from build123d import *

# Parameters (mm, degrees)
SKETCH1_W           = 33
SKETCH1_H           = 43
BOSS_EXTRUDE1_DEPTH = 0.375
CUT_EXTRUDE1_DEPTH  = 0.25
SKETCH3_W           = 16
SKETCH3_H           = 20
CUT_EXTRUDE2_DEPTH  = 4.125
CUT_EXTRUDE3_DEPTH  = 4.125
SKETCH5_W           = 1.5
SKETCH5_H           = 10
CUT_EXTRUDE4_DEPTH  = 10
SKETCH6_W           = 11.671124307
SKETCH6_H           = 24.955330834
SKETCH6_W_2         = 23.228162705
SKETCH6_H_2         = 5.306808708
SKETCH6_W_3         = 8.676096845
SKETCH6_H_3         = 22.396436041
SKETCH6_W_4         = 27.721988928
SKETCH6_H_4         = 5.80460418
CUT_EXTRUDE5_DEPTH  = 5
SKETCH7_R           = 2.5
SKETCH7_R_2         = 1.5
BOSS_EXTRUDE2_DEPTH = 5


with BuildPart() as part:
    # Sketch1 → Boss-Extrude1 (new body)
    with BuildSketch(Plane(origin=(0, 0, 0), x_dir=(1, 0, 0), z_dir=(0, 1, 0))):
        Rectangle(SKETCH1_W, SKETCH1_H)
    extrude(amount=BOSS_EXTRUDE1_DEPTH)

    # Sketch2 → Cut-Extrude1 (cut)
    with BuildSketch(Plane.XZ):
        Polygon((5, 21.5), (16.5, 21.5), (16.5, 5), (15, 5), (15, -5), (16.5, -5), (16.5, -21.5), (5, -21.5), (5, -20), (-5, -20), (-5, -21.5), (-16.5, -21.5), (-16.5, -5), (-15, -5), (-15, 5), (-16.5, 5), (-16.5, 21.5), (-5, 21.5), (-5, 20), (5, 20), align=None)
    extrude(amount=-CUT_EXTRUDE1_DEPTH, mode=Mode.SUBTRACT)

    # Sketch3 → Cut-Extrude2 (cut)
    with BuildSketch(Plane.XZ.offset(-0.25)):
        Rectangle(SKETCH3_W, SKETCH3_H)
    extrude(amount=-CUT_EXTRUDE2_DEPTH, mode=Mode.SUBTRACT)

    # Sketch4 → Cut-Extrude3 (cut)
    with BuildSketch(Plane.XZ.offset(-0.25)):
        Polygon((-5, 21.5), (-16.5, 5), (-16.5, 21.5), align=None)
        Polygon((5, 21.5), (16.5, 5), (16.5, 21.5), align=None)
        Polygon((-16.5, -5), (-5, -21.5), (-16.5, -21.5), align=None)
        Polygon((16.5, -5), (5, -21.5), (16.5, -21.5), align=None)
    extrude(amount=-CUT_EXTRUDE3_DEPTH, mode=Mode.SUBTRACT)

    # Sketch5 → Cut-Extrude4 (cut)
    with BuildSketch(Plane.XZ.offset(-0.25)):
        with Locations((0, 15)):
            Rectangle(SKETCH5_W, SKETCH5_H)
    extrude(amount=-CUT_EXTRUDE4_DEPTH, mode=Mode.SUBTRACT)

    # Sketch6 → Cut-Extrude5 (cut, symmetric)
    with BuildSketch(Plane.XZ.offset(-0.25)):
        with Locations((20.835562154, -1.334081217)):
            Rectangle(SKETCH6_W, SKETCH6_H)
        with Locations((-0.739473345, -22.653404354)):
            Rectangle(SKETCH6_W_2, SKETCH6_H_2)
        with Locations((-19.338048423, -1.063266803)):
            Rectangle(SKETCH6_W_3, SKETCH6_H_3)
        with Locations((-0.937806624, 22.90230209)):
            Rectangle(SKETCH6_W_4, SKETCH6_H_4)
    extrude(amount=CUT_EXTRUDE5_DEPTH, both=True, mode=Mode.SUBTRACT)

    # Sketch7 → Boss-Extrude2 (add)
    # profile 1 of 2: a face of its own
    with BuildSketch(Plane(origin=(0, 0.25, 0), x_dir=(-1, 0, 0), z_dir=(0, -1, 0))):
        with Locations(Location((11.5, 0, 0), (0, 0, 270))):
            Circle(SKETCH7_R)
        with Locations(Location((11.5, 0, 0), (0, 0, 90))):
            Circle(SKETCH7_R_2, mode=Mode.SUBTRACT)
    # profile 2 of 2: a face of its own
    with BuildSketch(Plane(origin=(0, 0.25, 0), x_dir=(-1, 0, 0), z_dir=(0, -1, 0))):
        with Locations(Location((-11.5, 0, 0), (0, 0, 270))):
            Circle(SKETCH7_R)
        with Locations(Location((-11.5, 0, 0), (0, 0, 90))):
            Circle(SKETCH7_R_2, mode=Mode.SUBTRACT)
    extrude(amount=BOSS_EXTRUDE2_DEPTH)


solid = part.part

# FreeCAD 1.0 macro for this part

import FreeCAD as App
import Part
import Sketcher

V = App.Vector
Q = App.Units.Quantity

doc = App.newDocument("Part")
body = doc.addObject("PartDesign::Body", "Body")

sketch1 = body.newObject("Sketcher::SketchObject", "Sketch")
sketch1.AttachmentSupport = (doc.getObject("XZ_Plane"), [""])
sketch1.MapMode = "FlatFace"
sketch1.addGeometry(Part.LineSegment(V(-16.5, -21.5, 0), V(-16.5, 21.5, 0)), False)
sketch1.addGeometry(Part.LineSegment(V(-16.5, 21.5, 0), V(16.5, 21.5, 0)), False)
sketch1.addGeometry(Part.LineSegment(V(16.5, 21.5, 0), V(16.5, -21.5, 0)), False)
sketch1.addGeometry(Part.LineSegment(V(16.5, -21.5, 0), V(-16.5, -21.5, 0)), False)
sketch1.addConstraint(Sketcher.Constraint("Coincident", 0, 2, 1, 1))
sketch1.addConstraint(Sketcher.Constraint("Coincident", 1, 2, 2, 1))
sketch1.addConstraint(Sketcher.Constraint("Coincident", 2, 2, 3, 1))
sketch1.addConstraint(Sketcher.Constraint("Coincident", 3, 2, 0, 1))
sketch1.addConstraint(Sketcher.Constraint("Vertical", 0))
sketch1.addConstraint(Sketcher.Constraint("Horizontal", 1))
sketch1.addConstraint(Sketcher.Constraint("Vertical", 2))
sketch1.addConstraint(Sketcher.Constraint("Horizontal", 3))
sketch1.addConstraint(Sketcher.Constraint("Symmetric", 0, 2, 2, 2, -1, 1))
sketch1.addConstraint(Sketcher.Constraint("DistanceX", 1, 1, 1, 2, Q("33 mm")))
sketch1.addConstraint(Sketcher.Constraint("DistanceY", 0, 1, 0, 2, Q("43 mm")))
pad1 = body.newObject("PartDesign::Pad", "Pad")
pad1.Profile = sketch1
pad1.Length = 0.375
pad1.Reversed = True

sketch2 = body.newObject("Sketcher::SketchObject", "Sketch001")
sketch2.AttachmentSupport = (doc.getObject("XZ_Plane"), [""])
sketch2.MapMode = "FlatFace"
sketch2.addGeometry(Part.LineSegment(V(16.5, 21.5, 0), V(5, 21.5, 0)), False)
sketch2.addGeometry(Part.LineSegment(V(5, 21.5, 0), V(5, 20, 0)), False)
sketch2.addGeometry(Part.LineSegment(V(5, 20, 0), V(-5, 20, 0)), False)
sketch2.addGeometry(Part.LineSegment(V(-5, 20, 0), V(-5, 21.5, 0)), False)
sketch2.addGeometry(Part.LineSegment(V(-5, 21.5, 0), V(-16.5, 21.5, 0)), False)
sketch2.addGeometry(Part.LineSegment(V(-16.5, 21.5, 0), V(-16.5, 5, 0)), False)
sketch2.addGeometry(Part.LineSegment(V(-16.5, 5, 0), V(-15, 5, 0)), False)
sketch2.addGeometry(Part.LineSegment(V(-15, 5, 0), V(-15, -5, 0)), False)
sketch2.addGeometry(Part.LineSegment(V(-15, -5, 0), V(-16.5, -5, 0)), False)
sketch2.addGeometry(Part.LineSegment(V(-16.5, -5, 0), V(-16.5, -21.5, 0)), False)
sketch2.addGeometry(Part.LineSegment(V(-16.5, -21.5, 0), V(-5, -21.5, 0)), False)
sketch2.addGeometry(Part.LineSegment(V(-5, -21.5, 0), V(-5, -20, 0)), False)
sketch2.addGeometry(Part.LineSegment(V(-5, -20, 0), V(5, -20, 0)), False)
sketch2.addGeometry(Part.LineSegment(V(5, -20, 0), V(5, -21.5, 0)), False)
sketch2.addGeometry(Part.LineSegment(V(5, -21.5, 0), V(16.5, -21.5, 0)), False)
sketch2.addGeometry(Part.LineSegment(V(16.5, -21.5, 0), V(16.5, -5, 0)), False)
sketch2.addGeometry(Part.LineSegment(V(16.5, -5, 0), V(15, -5, 0)), False)
sketch2.addGeometry(Part.LineSegment(V(15, -5, 0), V(15, 5, 0)), False)
sketch2.addGeometry(Part.LineSegment(V(15, 5, 0), V(16.5, 5, 0)), False)
sketch2.addGeometry(Part.LineSegment(V(16.5, 5, 0), V(16.5, 21.5, 0)), False)
sketch2.addConstraint(Sketcher.Constraint("Coincident", 0, 2, 1, 1))
sketch2.addConstraint(Sketcher.Constraint("Coincident", 1, 2, 2, 1))
sketch2.addConstraint(Sketcher.Constraint("Coincident", 2, 2, 3, 1))
sketch2.addConstraint(Sketcher.Constraint("Coincident", 3, 2, 4, 1))
sketch2.addConstraint(Sketcher.Constraint("Coincident", 4, 2, 5, 1))
sketch2.addConstraint(Sketcher.Constraint("Coincident", 5, 2, 6, 1))
sketch2.addConstraint(Sketcher.Constraint("Coincident", 6, 2, 7, 1))
sketch2.addConstraint(Sketcher.Constraint("Coincident", 7, 2, 8, 1))
sketch2.addConstraint(Sketcher.Constraint("Coincident", 8, 2, 9, 1))
sketch2.addConstraint(Sketcher.Constraint("Coincident", 9, 2, 10, 1))
sketch2.addConstraint(Sketcher.Constraint("Coincident", 10, 2, 11, 1))
sketch2.addConstraint(Sketcher.Constraint("Coincident", 11, 2, 12, 1))
sketch2.addConstraint(Sketcher.Constraint("Coincident", 12, 2, 13, 1))
sketch2.addConstraint(Sketcher.Constraint("Coincident", 13, 2, 14, 1))
sketch2.addConstraint(Sketcher.Constraint("Coincident", 14, 2, 15, 1))
sketch2.addConstraint(Sketcher.Constraint("Coincident", 15, 2, 16, 1))
sketch2.addConstraint(Sketcher.Constraint("Coincident", 16, 2, 17, 1))
sketch2.addConstraint(Sketcher.Constraint("Coincident", 17, 2, 18, 1))
sketch2.addConstraint(Sketcher.Constraint("Coincident", 18, 2, 19, 1))
sketch2.addConstraint(Sketcher.Constraint("Coincident", 19, 2, 0, 1))
sketch2.addConstraint(Sketcher.Constraint("Horizontal", 0))
sketch2.addConstraint(Sketcher.Constraint("Vertical", 1))
sketch2.addConstraint(Sketcher.Constraint("Horizontal", 2))
sketch2.addConstraint(Sketcher.Constraint("Vertical", 3))
sketch2.addConstraint(Sketcher.Constraint("Horizontal", 4))
sketch2.addConstraint(Sketcher.Constraint("Vertical", 5))
sketch2.addConstraint(Sketcher.Constraint("Horizontal", 6))
sketch2.addConstraint(Sketcher.Constraint("Vertical", 7))
sketch2.addConstraint(Sketcher.Constraint("Horizontal", 8))
sketch2.addConstraint(Sketcher.Constraint("Vertical", 9))
sketch2.addConstraint(Sketcher.Constraint("Horizontal", 10))
sketch2.addConstraint(Sketcher.Constraint("Vertical", 11))
sketch2.addConstraint(Sketcher.Constraint("Horizontal", 12))
sketch2.addConstraint(Sketcher.Constraint("Vertical", 13))
sketch2.addConstraint(Sketcher.Constraint("Horizontal", 14))
sketch2.addConstraint(Sketcher.Constraint("Vertical", 15))
sketch2.addConstraint(Sketcher.Constraint("Horizontal", 16))
sketch2.addConstraint(Sketcher.Constraint("Vertical", 17))
sketch2.addConstraint(Sketcher.Constraint("Horizontal", 18))
sketch2.addConstraint(Sketcher.Constraint("Vertical", 19))
sketch2.addConstraint(Sketcher.Constraint("Symmetric", 0, 2, 10, 2, -1, 1))
sketch2.addConstraint(Sketcher.Constraint("Symmetric", 2, 2, 12, 2, -1, 1))
sketch2.addConstraint(Sketcher.Constraint("Symmetric", 4, 2, 14, 2, -1, 1))
sketch2.addConstraint(Sketcher.Constraint("Symmetric", 6, 2, 16, 2, -1, 1))
sketch2.addConstraint(Sketcher.Constraint("Symmetric", 8, 2, 18, 2, -1, 1))
sketch2.addConstraint(Sketcher.Constraint("Symmetric", 0, 2, 3, 2, -2))
sketch2.addConstraint(Sketcher.Constraint("Symmetric", 8, 2, 15, 2, -2))
sketch2.addConstraint(Sketcher.Constraint("Equal", 18, 1))
sketch2.addConstraint(Sketcher.Constraint("Equal", 12, 7))
sketch2.addConstraint(Sketcher.Constraint("DistanceX", 2, 2, 2, 1, Q("10 mm")))
sketch2.addConstraint(Sketcher.Constraint("DistanceX", 0, 2, 0, 1, Q("11.5 mm")))
sketch2.addConstraint(Sketcher.Constraint("DistanceX", 6, 1, 6, 2, Q("1.5 mm")))
sketch2.addConstraint(Sketcher.Constraint("DistanceY", 5, 2, 5, 1, Q("16.5 mm")))
pocket1 = body.newObject("PartDesign::Pocket", "Pocket")
pocket1.Profile = sketch2
pocket1.Length = 0.25

sketch3 = body.newObject("Sketcher::SketchObject", "Sketch002")
sketch3.AttachmentSupport = (doc.getObject("XZ_Plane"), [""])
sketch3.MapMode = "FlatFace"
sketch3.AttachmentOffset = App.Placement(V(0, 0, -0.25), App.Rotation())
sketch3.addGeometry(Part.LineSegment(V(-8, 10, 0), V(-8, -10, 0)), False)
sketch3.addGeometry(Part.LineSegment(V(-8, -10, 0), V(8, -10, 0)), False)
sketch3.addGeometry(Part.LineSegment(V(8, -10, 0), V(8, 10, 0)), False)
sketch3.addGeometry(Part.LineSegment(V(8, 10, 0), V(-8, 10, 0)), False)
sketch3.addConstraint(Sketcher.Constraint("Coincident", 0, 2, 1, 1))
sketch3.addConstraint(Sketcher.Constraint("Coincident", 1, 2, 2, 1))
sketch3.addConstraint(Sketcher.Constraint("Coincident", 2, 2, 3, 1))
sketch3.addConstraint(Sketcher.Constraint("Coincident", 3, 2, 0, 1))
sketch3.addConstraint(Sketcher.Constraint("Vertical", 0))
sketch3.addConstraint(Sketcher.Constraint("Horizontal", 1))
sketch3.addConstraint(Sketcher.Constraint("Vertical", 2))
sketch3.addConstraint(Sketcher.Constraint("Horizontal", 3))
sketch3.addConstraint(Sketcher.Constraint("Symmetric", 0, 2, 2, 2, -1, 1))
sketch3.addConstraint(Sketcher.Constraint("DistanceX", 1, 1, 1, 2, Q("16 mm")))
sketch3.addConstraint(Sketcher.Constraint("DistanceY", 0, 2, 0, 1, Q("20 mm")))
pocket2 = body.newObject("PartDesign::Pocket", "Pocket001")
pocket2.Profile = sketch3
pocket2.Length = 4.125

sketch4 = body.newObject("Sketcher::SketchObject", "Sketch003")
sketch4.AttachmentSupport = (doc.getObject("XZ_Plane"), [""])
sketch4.MapMode = "FlatFace"
sketch4.AttachmentOffset = App.Placement(V(0, 0, -0.25), App.Rotation())
sketch4.addGeometry(Part.LineSegment(V(-16.5, 5, 0), V(-5, 21.5, 0)), False)
sketch4.addGeometry(Part.LineSegment(V(-5, 21.5, 0), V(-16.5, 21.5, 0)), False)
sketch4.addGeometry(Part.LineSegment(V(-16.5, 21.5, 0), V(-16.5, 5, 0)), False)
sketch4.addGeometry(Part.LineSegment(V(5, 21.5, 0), V(16.5, 5, 0)), False)
sketch4.addGeometry(Part.LineSegment(V(16.5, 5, 0), V(16.5, 21.5, 0)), False)
sketch4.addGeometry(Part.LineSegment(V(16.5, 21.5, 0), V(5, 21.5, 0)), False)
sketch4.addGeometry(Part.LineSegment(V(-5, -21.5, 0), V(-16.5, -5, 0)), False)
sketch4.addGeometry(Part.LineSegment(V(-16.5, -5, 0), V(-16.5, -21.5, 0)), False)
sketch4.addGeometry(Part.LineSegment(V(-16.5, -21.5, 0), V(-5, -21.5, 0)), False)
sketch4.addGeometry(Part.LineSegment(V(16.5, -5, 0), V(5, -21.5, 0)), False)
sketch4.addGeometry(Part.LineSegment(V(5, -21.5, 0), V(16.5, -21.5, 0)), False)
sketch4.addGeometry(Part.LineSegment(V(16.5, -21.5, 0), V(16.5, -5, 0)), False)
sketch4.addConstraint(Sketcher.Constraint("Coincident", 0, 2, 1, 1))
sketch4.addConstraint(Sketcher.Constraint("Coincident", 1, 2, 2, 1))
sketch4.addConstraint(Sketcher.Constraint("Coincident", 2, 2, 0, 1))
sketch4.addConstraint(Sketcher.Constraint("Coincident", 3, 2, 4, 1))
sketch4.addConstraint(Sketcher.Constraint("Coincident", 4, 2, 5, 1))
sketch4.addConstraint(Sketcher.Constraint("Coincident", 5, 2, 3, 1))
sketch4.addConstraint(Sketcher.Constraint("Coincident", 6, 2, 7, 1))
sketch4.addConstraint(Sketcher.Constraint("Coincident", 7, 2, 8, 1))
sketch4.addConstraint(Sketcher.Constraint("Coincident", 8, 2, 6, 1))
sketch4.addConstraint(Sketcher.Constraint("Coincident", 9, 2, 10, 1))
sketch4.addConstraint(Sketcher.Constraint("Coincident", 10, 2, 11, 1))
sketch4.addConstraint(Sketcher.Constraint("Coincident", 11, 2, 9, 1))
sketch4.addConstraint(Sketcher.Constraint("Horizontal", 1))
sketch4.addConstraint(Sketcher.Constraint("Vertical", 2))
sketch4.addConstraint(Sketcher.Constraint("Vertical", 4))
sketch4.addConstraint(Sketcher.Constraint("Horizontal", 5))
sketch4.addConstraint(Sketcher.Constraint("Vertical", 7))
sketch4.addConstraint(Sketcher.Constraint("Horizontal", 8))
sketch4.addConstraint(Sketcher.Constraint("Horizontal", 10))
sketch4.addConstraint(Sketcher.Constraint("Vertical", 11))
sketch4.addConstraint(Sketcher.Constraint("Symmetric", 3, 2, 6, 2, -1, 1))
sketch4.addConstraint(Sketcher.Constraint("Symmetric", 5, 2, 8, 2, -1, 1))
sketch4.addConstraint(Sketcher.Constraint("Symmetric", 0, 2, 9, 2, -1, 1))
sketch4.addConstraint(Sketcher.Constraint("Symmetric", 2, 2, 11, 2, -1, 1))
sketch4.addConstraint(Sketcher.Constraint("Symmetric", 2, 2, 3, 2, -2))
sketch4.addConstraint(Sketcher.Constraint("Symmetric", 0, 2, 5, 2, -2))
sketch4.addConstraint(Sketcher.Constraint("DistanceX", 1, 2, 1, 1, Q("11.5 mm")))
sketch4.addConstraint(Sketcher.Constraint("DistanceY", 2, 2, 2, 1, Q("16.5 mm")))
sketch4.addConstraint(Sketcher.Constraint("DistanceX", 0, 2, -1, 1, Q("5 mm")))
sketch4.addConstraint(Sketcher.Constraint("DistanceY", -1, 1, 2, 2, Q("5 mm")))
pocket3 = body.newObject("PartDesign::Pocket", "Pocket002")
pocket3.Profile = sketch4
pocket3.Length = 4.125

sketch5 = body.newObject("Sketcher::SketchObject", "Sketch004")
sketch5.AttachmentSupport = (doc.getObject("XZ_Plane"), [""])
sketch5.MapMode = "FlatFace"
sketch5.AttachmentOffset = App.Placement(V(0, 0, -0.25), App.Rotation())
sketch5.addGeometry(Part.LineSegment(V(-0.75, 20, 0), V(-0.75, 10, 0)), False)
sketch5.addGeometry(Part.LineSegment(V(-0.75, 10, 0), V(0.75, 10, 0)), False)
sketch5.addGeometry(Part.LineSegment(V(0.75, 10, 0), V(0.75, 20, 0)), False)
sketch5.addGeometry(Part.LineSegment(V(0.75, 20, 0), V(-0.75, 20, 0)), False)
sketch5.addConstraint(Sketcher.Constraint("Coincident", 0, 2, 1, 1))
sketch5.addConstraint(Sketcher.Constraint("Coincident", 1, 2, 2, 1))
sketch5.addConstraint(Sketcher.Constraint("Coincident", 2, 2, 3, 1))
sketch5.addConstraint(Sketcher.Constraint("Coincident", 3, 2, 0, 1))
sketch5.addConstraint(Sketcher.Constraint("Vertical", 0))
sketch5.addConstraint(Sketcher.Constraint("Horizontal", 1))
sketch5.addConstraint(Sketcher.Constraint("Vertical", 2))
sketch5.addConstraint(Sketcher.Constraint("Horizontal", 3))
sketch5.addConstraint(Sketcher.Constraint("DistanceY", 0, 2, 0, 1, Q("10 mm")))
sketch5.addConstraint(Sketcher.Constraint("DistanceX", 1, 1, 1, 2, Q("1.5 mm")))
sketch5.addConstraint(Sketcher.Constraint("DistanceY", -1, 1, 0, 2, Q("10 mm")))
sketch5.addConstraint(Sketcher.Constraint("DistanceX", 0, 2, -1, 1, Q("0.75 mm")))
pocket4 = body.newObject("PartDesign::Pocket", "Pocket003")
pocket4.Profile = sketch5
pocket4.Length = 10

sketch6 = body.newObject("Sketcher::SketchObject", "Sketch005")
sketch6.AttachmentSupport = (doc.getObject("XZ_Plane"), [""])
sketch6.MapMode = "FlatFace"
sketch6.AttachmentOffset = App.Placement(V(0, 0, -0.25), App.Rotation())
sketch6.addGeometry(Part.LineSegment(V(15, 11.143584, 0), V(15, -13.811747, 0)), False)
sketch6.addGeometry(Part.LineSegment(V(15, -13.811747, 0), V(26.671124, -13.811747, 0)), False)
sketch6.addGeometry(Part.LineSegment(V(26.671124, -13.811747, 0), V(26.671124, 11.143584, 0)), False)
sketch6.addGeometry(Part.LineSegment(V(26.671124, 11.143584, 0), V(15, 11.143584, 0)), False)
sketch6.addGeometry(Part.LineSegment(V(-12.353555, -20, 0), V(-12.353555, -25.306809, 0)), False)
sketch6.addGeometry(Part.LineSegment(V(-12.353555, -25.306809, 0), V(10.874608, -25.306809, 0)), False)
sketch6.addGeometry(Part.LineSegment(V(10.874608, -25.306809, 0), V(10.874608, -20, 0)), False)
sketch6.addGeometry(Part.LineSegment(V(10.874608, -20, 0), V(-12.353555, -20, 0)), False)
sketch6.addGeometry(Part.LineSegment(V(-23.676097, 10.134951, 0), V(-23.676097, -12.261485, 0)), False)
sketch6.addGeometry(Part.LineSegment(V(-23.676097, -12.261485, 0), V(-15, -12.261485, 0)), False)
sketch6.addGeometry(Part.LineSegment(V(-15, -12.261485, 0), V(-15, 10.134951, 0)), False)
sketch6.addGeometry(Part.LineSegment(V(-15, 10.134951, 0), V(-23.676097, 10.134951, 0)), False)
sketch6.addGeometry(Part.LineSegment(V(-14.798801, 25.804604, 0), V(-14.798801, 20, 0)), False)
sketch6.addGeometry(Part.LineSegment(V(-14.798801, 20, 0), V(12.923188, 20, 0)), False)
sketch6.addGeometry(Part.LineSegment(V(12.923188, 20, 0), V(12.923188, 25.804604, 0)), False)
sketch6.addGeometry(Part.LineSegment(V(12.923188, 25.804604, 0), V(-14.798801, 25.804604, 0)), False)
sketch6.addConstraint(Sketcher.Constraint("Coincident", 0, 2, 1, 1))
sketch6.addConstraint(Sketcher.Constraint("Coincident", 1, 2, 2, 1))
sketch6.addConstraint(Sketcher.Constraint("Coincident", 2, 2, 3, 1))
sketch6.addConstraint(Sketcher.Constraint("Coincident", 3, 2, 0, 1))
sketch6.addConstraint(Sketcher.Constraint("Coincident", 4, 2, 5, 1))
sketch6.addConstraint(Sketcher.Constraint("Coincident", 5, 2, 6, 1))
sketch6.addConstraint(Sketcher.Constraint("Coincident", 6, 2, 7, 1))
sketch6.addConstraint(Sketcher.Constraint("Coincident", 7, 2, 4, 1))
sketch6.addConstraint(Sketcher.Constraint("Coincident", 8, 2, 9, 1))
sketch6.addConstraint(Sketcher.Constraint("Coincident", 9, 2, 10, 1))
sketch6.addConstraint(Sketcher.Constraint("Coincident", 10, 2, 11, 1))
sketch6.addConstraint(Sketcher.Constraint("Coincident", 11, 2, 8, 1))
sketch6.addConstraint(Sketcher.Constraint("Coincident", 12, 2, 13, 1))
sketch6.addConstraint(Sketcher.Constraint("Coincident", 13, 2, 14, 1))
sketch6.addConstraint(Sketcher.Constraint("Coincident", 14, 2, 15, 1))
sketch6.addConstraint(Sketcher.Constraint("Coincident", 15, 2, 12, 1))
sketch6.addConstraint(Sketcher.Constraint("Vertical", 0))
sketch6.addConstraint(Sketcher.Constraint("Horizontal", 1))
sketch6.addConstraint(Sketcher.Constraint("Vertical", 2))
sketch6.addConstraint(Sketcher.Constraint("Horizontal", 3))
sketch6.addConstraint(Sketcher.Constraint("Vertical", 4))
sketch6.addConstraint(Sketcher.Constraint("Horizontal", 5))
sketch6.addConstraint(Sketcher.Constraint("Vertical", 6))
sketch6.addConstraint(Sketcher.Constraint("Horizontal", 7))
sketch6.addConstraint(Sketcher.Constraint("Vertical", 8))
sketch6.addConstraint(Sketcher.Constraint("Horizontal", 9))
sketch6.addConstraint(Sketcher.Constraint("Vertical", 10))
sketch6.addConstraint(Sketcher.Constraint("Horizontal", 11))
sketch6.addConstraint(Sketcher.Constraint("Vertical", 12))
sketch6.addConstraint(Sketcher.Constraint("Horizontal", 13))
sketch6.addConstraint(Sketcher.Constraint("Vertical", 14))
sketch6.addConstraint(Sketcher.Constraint("Horizontal", 15))
sketch6.addConstraint(Sketcher.Constraint("DistanceX", -1, 1, 0, 2, Q("15 mm")))
sketch6.addConstraint(Sketcher.Constraint("DistanceY", 6, 2, -1, 1, Q("20 mm")))
sketch6.addConstraint(Sketcher.Constraint("DistanceX", 9, 2, -1, 1, Q("15 mm")))
sketch6.addConstraint(Sketcher.Constraint("DistanceY", -1, 1, 12, 2, Q("20 mm")))
sketch6.addConstraint(Sketcher.Constraint("DistanceX", 13, 1, 13, 2, Q("27.721989 mm")))
sketch6.addConstraint(Sketcher.Constraint("DistanceY", 0, 2, 0, 1, Q("24.955331 mm")))
sketch6.addConstraint(Sketcher.Constraint("DistanceY", 4, 2, 4, 1, Q("5.306809 mm")))
sketch6.addConstraint(Sketcher.Constraint("DistanceX", 12, 2, -1, 1, Q("14.798801 mm")))
sketch6.addConstraint(Sketcher.Constraint("DistanceX", 1, 1, 1, 2, Q("11.671124 mm")))
sketch6.addConstraint(Sketcher.Constraint("DistanceX", 5, 1, 5, 2, Q("23.228163 mm")))
sketch6.addConstraint(Sketcher.Constraint("DistanceX", 9, 1, 9, 2, Q("8.676097 mm")))
sketch6.addConstraint(Sketcher.Constraint("DistanceY", 8, 2, 8, 1, Q("22.396436 mm")))
sketch6.addConstraint(Sketcher.Constraint("DistanceY", 12, 2, 12, 1, Q("5.804604 mm")))
sketch6.addConstraint(Sketcher.Constraint("DistanceX", -1, 1, 5, 2, Q("10.874608 mm")))
sketch6.addConstraint(Sketcher.Constraint("DistanceY", -1, 1, 10, 2, Q("10.134951 mm")))
sketch6.addConstraint(Sketcher.Constraint("DistanceY", 0, 2, 8, 2, Q("1.550262 mm")))
pocket5 = body.newObject("PartDesign::Pocket", "Pocket004")
pocket5.Profile = sketch6
pocket5.Length = 10
pocket5.Midplane = True

sketch7 = body.newObject("Sketcher::SketchObject", "Sketch006")
sketch7.AttachmentSupport = (doc.getObject("XZ_Plane"), [""])
sketch7.MapMode = "FlatFace"
sketch7.AttachmentOffset = App.Placement(V(0, 0, -0.25), App.Rotation())
sketch7.addGeometry(Part.Circle(V(-11.5, 0, 0), V(0, 0, 1), 2.5), False)
sketch7.addGeometry(Part.Circle(V(-11.5, 0, 0), V(0, 0, 1), 1.5), False)
sketch7.addGeometry(Part.Circle(V(11.5, 0, 0), V(0, 0, 1), 2.5), False)
sketch7.addGeometry(Part.Circle(V(11.5, 0, 0), V(0, 0, 1), 1.5), False)
sketch7.addConstraint(Sketcher.Constraint("Coincident", 1, 3, 0, 3))
sketch7.addConstraint(Sketcher.Constraint("Coincident", 3, 3, 2, 3))
sketch7.addConstraint(Sketcher.Constraint("Equal", 0, 2))
sketch7.addConstraint(Sketcher.Constraint("Equal", 1, 3))
sketch7.addConstraint(Sketcher.Constraint("Symmetric", 0, 3, 2, 3, -1, 1))
sketch7.addConstraint(Sketcher.Constraint("PointOnObject", 0, 3, -1))
sketch7.addConstraint(Sketcher.Constraint("Diameter", 0, Q("5 mm")))
sketch7.addConstraint(Sketcher.Constraint("Diameter", 1, Q("3 mm")))
sketch7.addConstraint(Sketcher.Constraint("DistanceX", 0, 3, 2, 3, Q("23 mm")))
pad2 = body.newObject("PartDesign::Pad", "Pad001")
pad2.Profile = sketch7
pad2.Length = 5

doc.recompute()
